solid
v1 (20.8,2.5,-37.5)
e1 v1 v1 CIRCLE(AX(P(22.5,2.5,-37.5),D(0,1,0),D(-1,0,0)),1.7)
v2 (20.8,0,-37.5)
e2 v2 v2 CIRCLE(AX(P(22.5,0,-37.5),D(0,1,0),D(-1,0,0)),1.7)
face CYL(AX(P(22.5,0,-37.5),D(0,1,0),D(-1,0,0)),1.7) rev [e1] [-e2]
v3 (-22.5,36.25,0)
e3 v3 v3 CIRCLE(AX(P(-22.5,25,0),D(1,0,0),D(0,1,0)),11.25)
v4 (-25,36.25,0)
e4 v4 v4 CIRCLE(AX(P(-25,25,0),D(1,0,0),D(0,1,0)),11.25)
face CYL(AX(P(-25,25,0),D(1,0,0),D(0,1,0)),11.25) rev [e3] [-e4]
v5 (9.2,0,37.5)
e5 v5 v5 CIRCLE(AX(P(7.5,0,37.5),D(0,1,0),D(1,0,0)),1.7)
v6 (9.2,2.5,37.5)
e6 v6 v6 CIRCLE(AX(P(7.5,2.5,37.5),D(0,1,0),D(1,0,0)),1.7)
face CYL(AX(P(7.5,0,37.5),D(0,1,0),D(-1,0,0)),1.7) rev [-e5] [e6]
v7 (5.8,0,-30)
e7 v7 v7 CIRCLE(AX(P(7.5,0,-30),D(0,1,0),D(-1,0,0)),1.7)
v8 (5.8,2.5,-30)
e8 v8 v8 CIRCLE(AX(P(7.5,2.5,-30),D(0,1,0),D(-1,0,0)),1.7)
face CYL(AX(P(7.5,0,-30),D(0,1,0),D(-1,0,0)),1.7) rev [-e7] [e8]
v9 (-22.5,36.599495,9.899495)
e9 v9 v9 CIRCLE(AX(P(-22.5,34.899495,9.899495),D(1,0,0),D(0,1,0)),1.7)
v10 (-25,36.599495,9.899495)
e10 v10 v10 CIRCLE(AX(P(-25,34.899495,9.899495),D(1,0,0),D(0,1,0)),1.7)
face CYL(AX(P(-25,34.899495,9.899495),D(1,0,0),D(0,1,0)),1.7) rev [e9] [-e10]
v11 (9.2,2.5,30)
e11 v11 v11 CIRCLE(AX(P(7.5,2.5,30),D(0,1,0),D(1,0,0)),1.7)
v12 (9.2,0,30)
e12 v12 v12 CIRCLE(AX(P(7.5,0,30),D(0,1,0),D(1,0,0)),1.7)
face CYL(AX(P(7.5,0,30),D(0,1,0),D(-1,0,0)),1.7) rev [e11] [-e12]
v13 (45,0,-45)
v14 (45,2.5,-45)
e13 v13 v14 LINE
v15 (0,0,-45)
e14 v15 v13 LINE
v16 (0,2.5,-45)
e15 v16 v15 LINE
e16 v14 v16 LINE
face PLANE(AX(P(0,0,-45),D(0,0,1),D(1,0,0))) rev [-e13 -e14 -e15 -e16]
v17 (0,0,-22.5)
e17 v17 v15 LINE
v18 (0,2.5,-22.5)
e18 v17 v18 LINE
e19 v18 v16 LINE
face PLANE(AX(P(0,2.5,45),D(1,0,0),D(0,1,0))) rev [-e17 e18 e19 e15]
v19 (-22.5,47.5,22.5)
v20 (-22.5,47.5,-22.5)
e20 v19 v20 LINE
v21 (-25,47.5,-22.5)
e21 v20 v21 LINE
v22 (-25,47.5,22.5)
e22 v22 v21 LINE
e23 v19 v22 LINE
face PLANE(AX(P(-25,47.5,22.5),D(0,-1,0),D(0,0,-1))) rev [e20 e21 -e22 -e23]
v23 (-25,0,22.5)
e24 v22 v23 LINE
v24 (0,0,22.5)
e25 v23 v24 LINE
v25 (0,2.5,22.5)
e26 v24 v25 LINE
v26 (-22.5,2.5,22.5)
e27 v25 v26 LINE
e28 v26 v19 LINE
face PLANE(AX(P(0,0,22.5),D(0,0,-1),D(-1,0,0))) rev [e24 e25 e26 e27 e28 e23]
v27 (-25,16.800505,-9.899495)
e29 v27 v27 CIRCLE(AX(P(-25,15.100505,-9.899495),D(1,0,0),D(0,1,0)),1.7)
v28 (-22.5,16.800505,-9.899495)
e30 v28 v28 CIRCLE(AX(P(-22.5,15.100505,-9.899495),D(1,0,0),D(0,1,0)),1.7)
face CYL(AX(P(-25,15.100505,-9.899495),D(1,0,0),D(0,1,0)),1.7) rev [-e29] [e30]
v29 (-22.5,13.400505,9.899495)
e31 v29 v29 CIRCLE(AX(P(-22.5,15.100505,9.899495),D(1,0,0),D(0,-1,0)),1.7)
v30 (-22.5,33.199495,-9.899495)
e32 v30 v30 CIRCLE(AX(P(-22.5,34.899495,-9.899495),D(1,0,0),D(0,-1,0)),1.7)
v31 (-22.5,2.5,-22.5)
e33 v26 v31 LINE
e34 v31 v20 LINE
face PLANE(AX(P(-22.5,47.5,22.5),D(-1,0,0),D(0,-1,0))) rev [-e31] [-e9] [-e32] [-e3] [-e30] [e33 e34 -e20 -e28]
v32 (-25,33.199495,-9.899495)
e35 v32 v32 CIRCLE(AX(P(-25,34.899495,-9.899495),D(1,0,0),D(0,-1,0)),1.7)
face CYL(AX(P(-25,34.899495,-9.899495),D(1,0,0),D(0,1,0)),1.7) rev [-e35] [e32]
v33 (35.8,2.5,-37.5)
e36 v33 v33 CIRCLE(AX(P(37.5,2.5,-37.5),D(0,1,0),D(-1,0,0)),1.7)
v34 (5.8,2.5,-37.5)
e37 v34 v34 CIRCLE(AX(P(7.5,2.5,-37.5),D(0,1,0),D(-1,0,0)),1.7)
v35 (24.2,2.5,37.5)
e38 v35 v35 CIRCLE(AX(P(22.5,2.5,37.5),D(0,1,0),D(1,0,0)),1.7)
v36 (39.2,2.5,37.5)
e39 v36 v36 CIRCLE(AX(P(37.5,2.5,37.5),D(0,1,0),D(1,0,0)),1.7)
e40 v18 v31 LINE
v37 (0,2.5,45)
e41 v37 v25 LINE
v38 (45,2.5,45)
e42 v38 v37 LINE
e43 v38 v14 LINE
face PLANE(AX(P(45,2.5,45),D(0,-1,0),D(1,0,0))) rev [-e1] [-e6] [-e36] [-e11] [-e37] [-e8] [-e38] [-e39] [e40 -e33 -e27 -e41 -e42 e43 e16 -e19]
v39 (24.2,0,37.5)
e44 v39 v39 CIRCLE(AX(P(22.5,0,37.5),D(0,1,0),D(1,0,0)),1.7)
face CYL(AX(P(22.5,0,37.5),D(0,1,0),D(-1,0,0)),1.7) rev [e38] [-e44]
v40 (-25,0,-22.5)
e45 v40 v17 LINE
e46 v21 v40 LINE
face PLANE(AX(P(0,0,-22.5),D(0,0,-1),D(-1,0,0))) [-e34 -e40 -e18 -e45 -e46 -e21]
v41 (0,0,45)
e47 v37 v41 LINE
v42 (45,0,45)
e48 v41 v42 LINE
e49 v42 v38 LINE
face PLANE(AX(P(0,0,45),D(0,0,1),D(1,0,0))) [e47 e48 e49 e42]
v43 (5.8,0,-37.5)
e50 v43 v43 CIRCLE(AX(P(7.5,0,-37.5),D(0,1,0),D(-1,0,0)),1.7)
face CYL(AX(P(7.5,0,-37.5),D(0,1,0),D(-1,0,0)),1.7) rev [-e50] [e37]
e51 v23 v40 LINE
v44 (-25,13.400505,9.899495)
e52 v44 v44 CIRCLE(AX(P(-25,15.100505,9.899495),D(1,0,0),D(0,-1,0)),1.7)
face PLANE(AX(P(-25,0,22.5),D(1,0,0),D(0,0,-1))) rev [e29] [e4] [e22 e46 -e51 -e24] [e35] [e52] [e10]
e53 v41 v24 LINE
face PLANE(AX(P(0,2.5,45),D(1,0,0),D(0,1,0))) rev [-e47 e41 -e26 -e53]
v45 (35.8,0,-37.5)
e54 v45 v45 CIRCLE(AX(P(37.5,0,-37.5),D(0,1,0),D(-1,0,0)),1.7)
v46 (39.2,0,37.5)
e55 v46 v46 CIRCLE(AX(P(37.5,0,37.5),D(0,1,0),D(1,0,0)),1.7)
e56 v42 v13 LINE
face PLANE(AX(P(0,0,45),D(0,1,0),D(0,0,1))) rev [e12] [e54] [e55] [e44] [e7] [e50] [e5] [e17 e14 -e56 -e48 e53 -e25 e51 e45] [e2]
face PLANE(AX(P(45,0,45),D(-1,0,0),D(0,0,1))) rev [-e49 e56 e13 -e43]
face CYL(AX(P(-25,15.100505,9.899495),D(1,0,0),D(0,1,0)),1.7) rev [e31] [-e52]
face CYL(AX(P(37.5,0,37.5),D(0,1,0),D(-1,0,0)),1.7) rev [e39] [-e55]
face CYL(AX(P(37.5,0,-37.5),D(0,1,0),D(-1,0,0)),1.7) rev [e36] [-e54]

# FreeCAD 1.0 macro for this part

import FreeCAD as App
import Part
import Sketcher

doc = App.newDocument("Part")
body = doc.addObject("PartDesign::Body", "Body")

sketch1 = doc.addObject("Sketcher::SketchObject", "Sketch")
body.addObject(sketch1)
sketch1.AttachmentSupport = (doc.XY_Plane, [""])
sketch1.MapMode = "FlatFace"
sketch1.addGeometry([
    Part.LineSegment(App.Vector(0, 2.5, 0), App.Vector(0, 0, 0)),
    Part.LineSegment(App.Vector(0, 0, 0), App.Vector(45, 0, 0)),
    Part.LineSegment(App.Vector(45, 0, 0), App.Vector(45, 2.5, 0)),
    Part.LineSegment(App.Vector(45, 2.5, 0), App.Vector(0, 2.5, 0)),
], False)
sketch1.addConstraint([
    Sketcher.Constraint("Coincident", 0, 2, 1, 1),
    Sketcher.Constraint("Coincident", 1, 2, 2, 1),
    Sketcher.Constraint("Coincident", 2, 2, 3, 1),
    Sketcher.Constraint("Coincident", 3, 2, 0, 1),
    Sketcher.Constraint("Vertical", 0),
    Sketcher.Constraint("Horizontal", 1),
    Sketcher.Constraint("Vertical", 2),
    Sketcher.Constraint("Horizontal", 3),
    Sketcher.Constraint("Coincident", 0, 2, -1, 1),
    Sketcher.Constraint("DistanceX", 1, 1, 1, 2, 45.0),
    Sketcher.Constraint("DistanceY", 0, 2, 0, 1, 2.5),
])
pad1 = doc.addObject("PartDesign::Pad", "Pad")
body.addObject(pad1)
pad1.Profile = sketch1
pad1.Length = 90
pad1.Midplane = True

sketch2 = doc.addObject("Sketcher::SketchObject", "Sketch001")
body.addObject(sketch2)
sketch2.AttachmentSupport = (doc.XY_Plane, [""])
sketch2.MapMode = "FlatFace"
sketch2.addGeometry([
    Part.LineSegment(App.Vector(-25, 0, 0), App.Vector(0, 0, 0)),
    Part.LineSegment(App.Vector(0, 0, 0), App.Vector(0, 2.5, 0)),
    Part.LineSegment(App.Vector(0, 2.5, 0), App.Vector(-22.5, 2.5, 0)),
    Part.LineSegment(App.Vector(-22.5, 2.5, 0), App.Vector(-22.5, 47.5, 0)),
    Part.LineSegment(App.Vector(-22.5, 47.5, 0), App.Vector(-25, 47.5, 0)),
    Part.LineSegment(App.Vector(-25, 47.5, 0), App.Vector(-25, 0, 0)),
], False)
sketch2.addConstraint([
    Sketcher.Constraint("Coincident", 0, 2, 1, 1),
    Sketcher.Constraint("Coincident", 1, 2, 2, 1),
    Sketcher.Constraint("Coincident", 2, 2, 3, 1),
    Sketcher.Constraint("Coincident", 3, 2, 4, 1),
    Sketcher.Constraint("Coincident", 4, 2, 5, 1),
    Sketcher.Constraint("Coincident", 5, 2, 0, 1),
    Sketcher.Constraint("Horizontal", 0),
    Sketcher.Constraint("Vertical", 1),
    Sketcher.Constraint("Horizontal", 2),
    Sketcher.Constraint("Vertical", 3),
    Sketcher.Constraint("Horizontal", 4),
    Sketcher.Constraint("Vertical", 5),
    Sketcher.Constraint("Coincident", 0, 2, -1, 1),
    Sketcher.Constraint("Equal", 4, 1),
    Sketcher.Constraint("DistanceX", 0, 1, 0, 2, 25.0),
    Sketcher.Constraint("DistanceY", 3, 1, 3, 2, 45.0),
    Sketcher.Constraint("DistanceX", 2, 2, 2, 1, 22.5),
])
pad2 = doc.addObject("PartDesign::Pad", "Pad001")
body.addObject(pad2)
pad2.Profile = sketch2
pad2.Length = 45
pad2.Midplane = True

sketch3 = doc.addObject("Sketcher::SketchObject", "Sketch002")
body.addObject(sketch3)
sketch3.AttachmentSupport = (doc.YZ_Plane, [""])
sketch3.MapMode = "FlatFace"
sketch3.AttachmentOffset = App.Placement(App.Vector(0, 0, -22.5), App.Rotation())
sketch3.addGeometry(Part.Circle(App.Vector(25, 0, 0), App.Vector(0, 0, 1), 11), False)
sketch3.addConstraint([
    Sketcher.Constraint("PointOnObject", 0, 3, -1),
    Sketcher.Constraint("Diameter", 0, 22.5),
    Sketcher.Constraint("DistanceX", -1, 1, 0, 3, 25.0),
])
pocket1 = doc.addObject("PartDesign::Pocket", "Pocket")
body.addObject(pocket1)
pocket1.Profile = sketch3
pocket1.Type = "ThroughAll"

sketch4 = doc.addObject("Sketcher::SketchObject", "Sketch003")
body.addObject(sketch4)
sketch4.AttachmentSupport = (doc.YZ_Plane, [""])
sketch4.MapMode = "FlatFace"
sketch4.AttachmentOffset = App.Placement(App.Vector(0, 0, -22.5), App.Rotation())
sketch4.addGeometry([
    Part.Circle(App.Vector(34.9, 9.9, 0), App.Vector(0, 0, 1), 1.7),
    Part.Circle(App.Vector(34.9, -9.9, 0), App.Vector(0, 0, 1), 1.7),
    Part.Circle(App.Vector(15.1, 9.9, 0), App.Vector(0, 0, 1), 1.7),
    Part.Circle(App.Vector(15.1, -9.9, 0), App.Vector(0, 0, 1), 1.7),
], False)
sketch4.addConstraint([
    Sketcher.Constraint("Equal", 0, 1),
    Sketcher.Constraint("Equal", 1, 2),
    Sketcher.Constraint("Equal", 2, 3),
    Sketcher.Constraint("Symmetric", 0, 3, 1, 3, -1),
    Sketcher.Constraint("Symmetric", 2, 3, 3, 3, -1),
    Sketcher.Constraint("Horizontal", 0, 3, 2, 3),
    Sketcher.Constraint("Diameter", 0, 3.4),
    Sketcher.Constraint("DistanceY", 1, 3, 0, 3, 19.79899),
    Sketcher.Constraint("DistanceX", 2, 3, 0, 3, 19.79899),
    Sketcher.Constraint("DistanceX", -1, 1, 0, 3, 34.899495),
])
pocket2 = doc.addObject("PartDesign::Pocket", "Pocket001")
body.addObject(pocket2)
pocket2.Profile = sketch4
pocket2.Type = "ThroughAll"

sketch5 = doc.addObject("Sketcher::SketchObject", "Sketch004")
body.addObject(sketch5)
sketch5.AttachmentSupport = (doc.XZ_Plane, [""])
sketch5.MapMode = "FlatFace"
sketch5.AttachmentOffset = App.Placement(App.Vector(0, 0, -2.5), App.Rotation())
sketch5.addGeometry([
    Part.Circle(App.Vector(7.5, -37.5, 0), App.Vector(0, 0, 1), 1.7),
    Part.Circle(App.Vector(7.5, -30, 0), App.Vector(0, 0, 1), 1.7),
    Part.Circle(App.Vector(22.5, -37.5, 0), App.Vector(0, 0, 1), 1.7),
    Part.Circle(App.Vector(37.5, -37.5, 0), App.Vector(0, 0, 1), 1.7),
    Part.Circle(App.Vector(7.5, 30, 0), App.Vector(0, 0, 1), 1.7),
    Part.Circle(App.Vector(37.5, 37.5, 0), App.Vector(0, 0, 1), 1.7),
    Part.Circle(App.Vector(22.5, 37.5, 0), App.Vector(0, 0, 1), 1.7),
    Part.Circle(App.Vector(7.5, 37.5, 0), App.Vector(0, 0, 1), 1.7),
], False)
sketch5.addConstraint([
    Sketcher.Constraint("Equal", 0, 1),
    Sketcher.Constraint("Equal", 1, 2),
    Sketcher.Constraint("Equal", 2, 3),
    Sketcher.Constraint("Equal", 3, 4),
    Sketcher.Constraint("Equal", 4, 5),
    Sketcher.Constraint("Equal", 5, 6),
    Sketcher.Constraint("Equal", 6, 7),
    Sketcher.Constraint("Symmetric", 1, 3, 4, 3, -1),
    Sketcher.Constraint("Symmetric", 3, 3, 5, 3, -1),
    Sketcher.Constraint("Symmetric", 2, 3, 6, 3, -1),
    Sketcher.Constraint("Symmetric", 0, 3, 7, 3, -1),
    Sketcher.Constraint("Horizontal", 0, 3, 2, 3),
    Sketcher.Constraint("Horizontal", 2, 3, 3, 3),
    Sketcher.Constraint("Vertical", 0, 3, 1, 3),
    Sketcher.Constraint("Diameter", 0, 3.4),
    Sketcher.Constraint("DistanceY", 1, 3, -1, 1, 30.0),
    Sketcher.Constraint("DistanceX", 0, 3, 2, 3, 15.0),
    Sketcher.Constraint("DistanceX", 2, 3, 3, 3, 15.0),
    Sketcher.Constraint("DistanceY", 3, 3, 5, 3, 75.0),
    Sketcher.Constraint("DistanceX", -1, 1, 0, 3, 7.5),
])
pocket3 = doc.addObject("PartDesign::Pocket", "Pocket002")
body.addObject(pocket3)
pocket3.Profile = sketch5
pocket3.Type = "ThroughAll"
pocket3.Reversed = True

doc.recompute()
